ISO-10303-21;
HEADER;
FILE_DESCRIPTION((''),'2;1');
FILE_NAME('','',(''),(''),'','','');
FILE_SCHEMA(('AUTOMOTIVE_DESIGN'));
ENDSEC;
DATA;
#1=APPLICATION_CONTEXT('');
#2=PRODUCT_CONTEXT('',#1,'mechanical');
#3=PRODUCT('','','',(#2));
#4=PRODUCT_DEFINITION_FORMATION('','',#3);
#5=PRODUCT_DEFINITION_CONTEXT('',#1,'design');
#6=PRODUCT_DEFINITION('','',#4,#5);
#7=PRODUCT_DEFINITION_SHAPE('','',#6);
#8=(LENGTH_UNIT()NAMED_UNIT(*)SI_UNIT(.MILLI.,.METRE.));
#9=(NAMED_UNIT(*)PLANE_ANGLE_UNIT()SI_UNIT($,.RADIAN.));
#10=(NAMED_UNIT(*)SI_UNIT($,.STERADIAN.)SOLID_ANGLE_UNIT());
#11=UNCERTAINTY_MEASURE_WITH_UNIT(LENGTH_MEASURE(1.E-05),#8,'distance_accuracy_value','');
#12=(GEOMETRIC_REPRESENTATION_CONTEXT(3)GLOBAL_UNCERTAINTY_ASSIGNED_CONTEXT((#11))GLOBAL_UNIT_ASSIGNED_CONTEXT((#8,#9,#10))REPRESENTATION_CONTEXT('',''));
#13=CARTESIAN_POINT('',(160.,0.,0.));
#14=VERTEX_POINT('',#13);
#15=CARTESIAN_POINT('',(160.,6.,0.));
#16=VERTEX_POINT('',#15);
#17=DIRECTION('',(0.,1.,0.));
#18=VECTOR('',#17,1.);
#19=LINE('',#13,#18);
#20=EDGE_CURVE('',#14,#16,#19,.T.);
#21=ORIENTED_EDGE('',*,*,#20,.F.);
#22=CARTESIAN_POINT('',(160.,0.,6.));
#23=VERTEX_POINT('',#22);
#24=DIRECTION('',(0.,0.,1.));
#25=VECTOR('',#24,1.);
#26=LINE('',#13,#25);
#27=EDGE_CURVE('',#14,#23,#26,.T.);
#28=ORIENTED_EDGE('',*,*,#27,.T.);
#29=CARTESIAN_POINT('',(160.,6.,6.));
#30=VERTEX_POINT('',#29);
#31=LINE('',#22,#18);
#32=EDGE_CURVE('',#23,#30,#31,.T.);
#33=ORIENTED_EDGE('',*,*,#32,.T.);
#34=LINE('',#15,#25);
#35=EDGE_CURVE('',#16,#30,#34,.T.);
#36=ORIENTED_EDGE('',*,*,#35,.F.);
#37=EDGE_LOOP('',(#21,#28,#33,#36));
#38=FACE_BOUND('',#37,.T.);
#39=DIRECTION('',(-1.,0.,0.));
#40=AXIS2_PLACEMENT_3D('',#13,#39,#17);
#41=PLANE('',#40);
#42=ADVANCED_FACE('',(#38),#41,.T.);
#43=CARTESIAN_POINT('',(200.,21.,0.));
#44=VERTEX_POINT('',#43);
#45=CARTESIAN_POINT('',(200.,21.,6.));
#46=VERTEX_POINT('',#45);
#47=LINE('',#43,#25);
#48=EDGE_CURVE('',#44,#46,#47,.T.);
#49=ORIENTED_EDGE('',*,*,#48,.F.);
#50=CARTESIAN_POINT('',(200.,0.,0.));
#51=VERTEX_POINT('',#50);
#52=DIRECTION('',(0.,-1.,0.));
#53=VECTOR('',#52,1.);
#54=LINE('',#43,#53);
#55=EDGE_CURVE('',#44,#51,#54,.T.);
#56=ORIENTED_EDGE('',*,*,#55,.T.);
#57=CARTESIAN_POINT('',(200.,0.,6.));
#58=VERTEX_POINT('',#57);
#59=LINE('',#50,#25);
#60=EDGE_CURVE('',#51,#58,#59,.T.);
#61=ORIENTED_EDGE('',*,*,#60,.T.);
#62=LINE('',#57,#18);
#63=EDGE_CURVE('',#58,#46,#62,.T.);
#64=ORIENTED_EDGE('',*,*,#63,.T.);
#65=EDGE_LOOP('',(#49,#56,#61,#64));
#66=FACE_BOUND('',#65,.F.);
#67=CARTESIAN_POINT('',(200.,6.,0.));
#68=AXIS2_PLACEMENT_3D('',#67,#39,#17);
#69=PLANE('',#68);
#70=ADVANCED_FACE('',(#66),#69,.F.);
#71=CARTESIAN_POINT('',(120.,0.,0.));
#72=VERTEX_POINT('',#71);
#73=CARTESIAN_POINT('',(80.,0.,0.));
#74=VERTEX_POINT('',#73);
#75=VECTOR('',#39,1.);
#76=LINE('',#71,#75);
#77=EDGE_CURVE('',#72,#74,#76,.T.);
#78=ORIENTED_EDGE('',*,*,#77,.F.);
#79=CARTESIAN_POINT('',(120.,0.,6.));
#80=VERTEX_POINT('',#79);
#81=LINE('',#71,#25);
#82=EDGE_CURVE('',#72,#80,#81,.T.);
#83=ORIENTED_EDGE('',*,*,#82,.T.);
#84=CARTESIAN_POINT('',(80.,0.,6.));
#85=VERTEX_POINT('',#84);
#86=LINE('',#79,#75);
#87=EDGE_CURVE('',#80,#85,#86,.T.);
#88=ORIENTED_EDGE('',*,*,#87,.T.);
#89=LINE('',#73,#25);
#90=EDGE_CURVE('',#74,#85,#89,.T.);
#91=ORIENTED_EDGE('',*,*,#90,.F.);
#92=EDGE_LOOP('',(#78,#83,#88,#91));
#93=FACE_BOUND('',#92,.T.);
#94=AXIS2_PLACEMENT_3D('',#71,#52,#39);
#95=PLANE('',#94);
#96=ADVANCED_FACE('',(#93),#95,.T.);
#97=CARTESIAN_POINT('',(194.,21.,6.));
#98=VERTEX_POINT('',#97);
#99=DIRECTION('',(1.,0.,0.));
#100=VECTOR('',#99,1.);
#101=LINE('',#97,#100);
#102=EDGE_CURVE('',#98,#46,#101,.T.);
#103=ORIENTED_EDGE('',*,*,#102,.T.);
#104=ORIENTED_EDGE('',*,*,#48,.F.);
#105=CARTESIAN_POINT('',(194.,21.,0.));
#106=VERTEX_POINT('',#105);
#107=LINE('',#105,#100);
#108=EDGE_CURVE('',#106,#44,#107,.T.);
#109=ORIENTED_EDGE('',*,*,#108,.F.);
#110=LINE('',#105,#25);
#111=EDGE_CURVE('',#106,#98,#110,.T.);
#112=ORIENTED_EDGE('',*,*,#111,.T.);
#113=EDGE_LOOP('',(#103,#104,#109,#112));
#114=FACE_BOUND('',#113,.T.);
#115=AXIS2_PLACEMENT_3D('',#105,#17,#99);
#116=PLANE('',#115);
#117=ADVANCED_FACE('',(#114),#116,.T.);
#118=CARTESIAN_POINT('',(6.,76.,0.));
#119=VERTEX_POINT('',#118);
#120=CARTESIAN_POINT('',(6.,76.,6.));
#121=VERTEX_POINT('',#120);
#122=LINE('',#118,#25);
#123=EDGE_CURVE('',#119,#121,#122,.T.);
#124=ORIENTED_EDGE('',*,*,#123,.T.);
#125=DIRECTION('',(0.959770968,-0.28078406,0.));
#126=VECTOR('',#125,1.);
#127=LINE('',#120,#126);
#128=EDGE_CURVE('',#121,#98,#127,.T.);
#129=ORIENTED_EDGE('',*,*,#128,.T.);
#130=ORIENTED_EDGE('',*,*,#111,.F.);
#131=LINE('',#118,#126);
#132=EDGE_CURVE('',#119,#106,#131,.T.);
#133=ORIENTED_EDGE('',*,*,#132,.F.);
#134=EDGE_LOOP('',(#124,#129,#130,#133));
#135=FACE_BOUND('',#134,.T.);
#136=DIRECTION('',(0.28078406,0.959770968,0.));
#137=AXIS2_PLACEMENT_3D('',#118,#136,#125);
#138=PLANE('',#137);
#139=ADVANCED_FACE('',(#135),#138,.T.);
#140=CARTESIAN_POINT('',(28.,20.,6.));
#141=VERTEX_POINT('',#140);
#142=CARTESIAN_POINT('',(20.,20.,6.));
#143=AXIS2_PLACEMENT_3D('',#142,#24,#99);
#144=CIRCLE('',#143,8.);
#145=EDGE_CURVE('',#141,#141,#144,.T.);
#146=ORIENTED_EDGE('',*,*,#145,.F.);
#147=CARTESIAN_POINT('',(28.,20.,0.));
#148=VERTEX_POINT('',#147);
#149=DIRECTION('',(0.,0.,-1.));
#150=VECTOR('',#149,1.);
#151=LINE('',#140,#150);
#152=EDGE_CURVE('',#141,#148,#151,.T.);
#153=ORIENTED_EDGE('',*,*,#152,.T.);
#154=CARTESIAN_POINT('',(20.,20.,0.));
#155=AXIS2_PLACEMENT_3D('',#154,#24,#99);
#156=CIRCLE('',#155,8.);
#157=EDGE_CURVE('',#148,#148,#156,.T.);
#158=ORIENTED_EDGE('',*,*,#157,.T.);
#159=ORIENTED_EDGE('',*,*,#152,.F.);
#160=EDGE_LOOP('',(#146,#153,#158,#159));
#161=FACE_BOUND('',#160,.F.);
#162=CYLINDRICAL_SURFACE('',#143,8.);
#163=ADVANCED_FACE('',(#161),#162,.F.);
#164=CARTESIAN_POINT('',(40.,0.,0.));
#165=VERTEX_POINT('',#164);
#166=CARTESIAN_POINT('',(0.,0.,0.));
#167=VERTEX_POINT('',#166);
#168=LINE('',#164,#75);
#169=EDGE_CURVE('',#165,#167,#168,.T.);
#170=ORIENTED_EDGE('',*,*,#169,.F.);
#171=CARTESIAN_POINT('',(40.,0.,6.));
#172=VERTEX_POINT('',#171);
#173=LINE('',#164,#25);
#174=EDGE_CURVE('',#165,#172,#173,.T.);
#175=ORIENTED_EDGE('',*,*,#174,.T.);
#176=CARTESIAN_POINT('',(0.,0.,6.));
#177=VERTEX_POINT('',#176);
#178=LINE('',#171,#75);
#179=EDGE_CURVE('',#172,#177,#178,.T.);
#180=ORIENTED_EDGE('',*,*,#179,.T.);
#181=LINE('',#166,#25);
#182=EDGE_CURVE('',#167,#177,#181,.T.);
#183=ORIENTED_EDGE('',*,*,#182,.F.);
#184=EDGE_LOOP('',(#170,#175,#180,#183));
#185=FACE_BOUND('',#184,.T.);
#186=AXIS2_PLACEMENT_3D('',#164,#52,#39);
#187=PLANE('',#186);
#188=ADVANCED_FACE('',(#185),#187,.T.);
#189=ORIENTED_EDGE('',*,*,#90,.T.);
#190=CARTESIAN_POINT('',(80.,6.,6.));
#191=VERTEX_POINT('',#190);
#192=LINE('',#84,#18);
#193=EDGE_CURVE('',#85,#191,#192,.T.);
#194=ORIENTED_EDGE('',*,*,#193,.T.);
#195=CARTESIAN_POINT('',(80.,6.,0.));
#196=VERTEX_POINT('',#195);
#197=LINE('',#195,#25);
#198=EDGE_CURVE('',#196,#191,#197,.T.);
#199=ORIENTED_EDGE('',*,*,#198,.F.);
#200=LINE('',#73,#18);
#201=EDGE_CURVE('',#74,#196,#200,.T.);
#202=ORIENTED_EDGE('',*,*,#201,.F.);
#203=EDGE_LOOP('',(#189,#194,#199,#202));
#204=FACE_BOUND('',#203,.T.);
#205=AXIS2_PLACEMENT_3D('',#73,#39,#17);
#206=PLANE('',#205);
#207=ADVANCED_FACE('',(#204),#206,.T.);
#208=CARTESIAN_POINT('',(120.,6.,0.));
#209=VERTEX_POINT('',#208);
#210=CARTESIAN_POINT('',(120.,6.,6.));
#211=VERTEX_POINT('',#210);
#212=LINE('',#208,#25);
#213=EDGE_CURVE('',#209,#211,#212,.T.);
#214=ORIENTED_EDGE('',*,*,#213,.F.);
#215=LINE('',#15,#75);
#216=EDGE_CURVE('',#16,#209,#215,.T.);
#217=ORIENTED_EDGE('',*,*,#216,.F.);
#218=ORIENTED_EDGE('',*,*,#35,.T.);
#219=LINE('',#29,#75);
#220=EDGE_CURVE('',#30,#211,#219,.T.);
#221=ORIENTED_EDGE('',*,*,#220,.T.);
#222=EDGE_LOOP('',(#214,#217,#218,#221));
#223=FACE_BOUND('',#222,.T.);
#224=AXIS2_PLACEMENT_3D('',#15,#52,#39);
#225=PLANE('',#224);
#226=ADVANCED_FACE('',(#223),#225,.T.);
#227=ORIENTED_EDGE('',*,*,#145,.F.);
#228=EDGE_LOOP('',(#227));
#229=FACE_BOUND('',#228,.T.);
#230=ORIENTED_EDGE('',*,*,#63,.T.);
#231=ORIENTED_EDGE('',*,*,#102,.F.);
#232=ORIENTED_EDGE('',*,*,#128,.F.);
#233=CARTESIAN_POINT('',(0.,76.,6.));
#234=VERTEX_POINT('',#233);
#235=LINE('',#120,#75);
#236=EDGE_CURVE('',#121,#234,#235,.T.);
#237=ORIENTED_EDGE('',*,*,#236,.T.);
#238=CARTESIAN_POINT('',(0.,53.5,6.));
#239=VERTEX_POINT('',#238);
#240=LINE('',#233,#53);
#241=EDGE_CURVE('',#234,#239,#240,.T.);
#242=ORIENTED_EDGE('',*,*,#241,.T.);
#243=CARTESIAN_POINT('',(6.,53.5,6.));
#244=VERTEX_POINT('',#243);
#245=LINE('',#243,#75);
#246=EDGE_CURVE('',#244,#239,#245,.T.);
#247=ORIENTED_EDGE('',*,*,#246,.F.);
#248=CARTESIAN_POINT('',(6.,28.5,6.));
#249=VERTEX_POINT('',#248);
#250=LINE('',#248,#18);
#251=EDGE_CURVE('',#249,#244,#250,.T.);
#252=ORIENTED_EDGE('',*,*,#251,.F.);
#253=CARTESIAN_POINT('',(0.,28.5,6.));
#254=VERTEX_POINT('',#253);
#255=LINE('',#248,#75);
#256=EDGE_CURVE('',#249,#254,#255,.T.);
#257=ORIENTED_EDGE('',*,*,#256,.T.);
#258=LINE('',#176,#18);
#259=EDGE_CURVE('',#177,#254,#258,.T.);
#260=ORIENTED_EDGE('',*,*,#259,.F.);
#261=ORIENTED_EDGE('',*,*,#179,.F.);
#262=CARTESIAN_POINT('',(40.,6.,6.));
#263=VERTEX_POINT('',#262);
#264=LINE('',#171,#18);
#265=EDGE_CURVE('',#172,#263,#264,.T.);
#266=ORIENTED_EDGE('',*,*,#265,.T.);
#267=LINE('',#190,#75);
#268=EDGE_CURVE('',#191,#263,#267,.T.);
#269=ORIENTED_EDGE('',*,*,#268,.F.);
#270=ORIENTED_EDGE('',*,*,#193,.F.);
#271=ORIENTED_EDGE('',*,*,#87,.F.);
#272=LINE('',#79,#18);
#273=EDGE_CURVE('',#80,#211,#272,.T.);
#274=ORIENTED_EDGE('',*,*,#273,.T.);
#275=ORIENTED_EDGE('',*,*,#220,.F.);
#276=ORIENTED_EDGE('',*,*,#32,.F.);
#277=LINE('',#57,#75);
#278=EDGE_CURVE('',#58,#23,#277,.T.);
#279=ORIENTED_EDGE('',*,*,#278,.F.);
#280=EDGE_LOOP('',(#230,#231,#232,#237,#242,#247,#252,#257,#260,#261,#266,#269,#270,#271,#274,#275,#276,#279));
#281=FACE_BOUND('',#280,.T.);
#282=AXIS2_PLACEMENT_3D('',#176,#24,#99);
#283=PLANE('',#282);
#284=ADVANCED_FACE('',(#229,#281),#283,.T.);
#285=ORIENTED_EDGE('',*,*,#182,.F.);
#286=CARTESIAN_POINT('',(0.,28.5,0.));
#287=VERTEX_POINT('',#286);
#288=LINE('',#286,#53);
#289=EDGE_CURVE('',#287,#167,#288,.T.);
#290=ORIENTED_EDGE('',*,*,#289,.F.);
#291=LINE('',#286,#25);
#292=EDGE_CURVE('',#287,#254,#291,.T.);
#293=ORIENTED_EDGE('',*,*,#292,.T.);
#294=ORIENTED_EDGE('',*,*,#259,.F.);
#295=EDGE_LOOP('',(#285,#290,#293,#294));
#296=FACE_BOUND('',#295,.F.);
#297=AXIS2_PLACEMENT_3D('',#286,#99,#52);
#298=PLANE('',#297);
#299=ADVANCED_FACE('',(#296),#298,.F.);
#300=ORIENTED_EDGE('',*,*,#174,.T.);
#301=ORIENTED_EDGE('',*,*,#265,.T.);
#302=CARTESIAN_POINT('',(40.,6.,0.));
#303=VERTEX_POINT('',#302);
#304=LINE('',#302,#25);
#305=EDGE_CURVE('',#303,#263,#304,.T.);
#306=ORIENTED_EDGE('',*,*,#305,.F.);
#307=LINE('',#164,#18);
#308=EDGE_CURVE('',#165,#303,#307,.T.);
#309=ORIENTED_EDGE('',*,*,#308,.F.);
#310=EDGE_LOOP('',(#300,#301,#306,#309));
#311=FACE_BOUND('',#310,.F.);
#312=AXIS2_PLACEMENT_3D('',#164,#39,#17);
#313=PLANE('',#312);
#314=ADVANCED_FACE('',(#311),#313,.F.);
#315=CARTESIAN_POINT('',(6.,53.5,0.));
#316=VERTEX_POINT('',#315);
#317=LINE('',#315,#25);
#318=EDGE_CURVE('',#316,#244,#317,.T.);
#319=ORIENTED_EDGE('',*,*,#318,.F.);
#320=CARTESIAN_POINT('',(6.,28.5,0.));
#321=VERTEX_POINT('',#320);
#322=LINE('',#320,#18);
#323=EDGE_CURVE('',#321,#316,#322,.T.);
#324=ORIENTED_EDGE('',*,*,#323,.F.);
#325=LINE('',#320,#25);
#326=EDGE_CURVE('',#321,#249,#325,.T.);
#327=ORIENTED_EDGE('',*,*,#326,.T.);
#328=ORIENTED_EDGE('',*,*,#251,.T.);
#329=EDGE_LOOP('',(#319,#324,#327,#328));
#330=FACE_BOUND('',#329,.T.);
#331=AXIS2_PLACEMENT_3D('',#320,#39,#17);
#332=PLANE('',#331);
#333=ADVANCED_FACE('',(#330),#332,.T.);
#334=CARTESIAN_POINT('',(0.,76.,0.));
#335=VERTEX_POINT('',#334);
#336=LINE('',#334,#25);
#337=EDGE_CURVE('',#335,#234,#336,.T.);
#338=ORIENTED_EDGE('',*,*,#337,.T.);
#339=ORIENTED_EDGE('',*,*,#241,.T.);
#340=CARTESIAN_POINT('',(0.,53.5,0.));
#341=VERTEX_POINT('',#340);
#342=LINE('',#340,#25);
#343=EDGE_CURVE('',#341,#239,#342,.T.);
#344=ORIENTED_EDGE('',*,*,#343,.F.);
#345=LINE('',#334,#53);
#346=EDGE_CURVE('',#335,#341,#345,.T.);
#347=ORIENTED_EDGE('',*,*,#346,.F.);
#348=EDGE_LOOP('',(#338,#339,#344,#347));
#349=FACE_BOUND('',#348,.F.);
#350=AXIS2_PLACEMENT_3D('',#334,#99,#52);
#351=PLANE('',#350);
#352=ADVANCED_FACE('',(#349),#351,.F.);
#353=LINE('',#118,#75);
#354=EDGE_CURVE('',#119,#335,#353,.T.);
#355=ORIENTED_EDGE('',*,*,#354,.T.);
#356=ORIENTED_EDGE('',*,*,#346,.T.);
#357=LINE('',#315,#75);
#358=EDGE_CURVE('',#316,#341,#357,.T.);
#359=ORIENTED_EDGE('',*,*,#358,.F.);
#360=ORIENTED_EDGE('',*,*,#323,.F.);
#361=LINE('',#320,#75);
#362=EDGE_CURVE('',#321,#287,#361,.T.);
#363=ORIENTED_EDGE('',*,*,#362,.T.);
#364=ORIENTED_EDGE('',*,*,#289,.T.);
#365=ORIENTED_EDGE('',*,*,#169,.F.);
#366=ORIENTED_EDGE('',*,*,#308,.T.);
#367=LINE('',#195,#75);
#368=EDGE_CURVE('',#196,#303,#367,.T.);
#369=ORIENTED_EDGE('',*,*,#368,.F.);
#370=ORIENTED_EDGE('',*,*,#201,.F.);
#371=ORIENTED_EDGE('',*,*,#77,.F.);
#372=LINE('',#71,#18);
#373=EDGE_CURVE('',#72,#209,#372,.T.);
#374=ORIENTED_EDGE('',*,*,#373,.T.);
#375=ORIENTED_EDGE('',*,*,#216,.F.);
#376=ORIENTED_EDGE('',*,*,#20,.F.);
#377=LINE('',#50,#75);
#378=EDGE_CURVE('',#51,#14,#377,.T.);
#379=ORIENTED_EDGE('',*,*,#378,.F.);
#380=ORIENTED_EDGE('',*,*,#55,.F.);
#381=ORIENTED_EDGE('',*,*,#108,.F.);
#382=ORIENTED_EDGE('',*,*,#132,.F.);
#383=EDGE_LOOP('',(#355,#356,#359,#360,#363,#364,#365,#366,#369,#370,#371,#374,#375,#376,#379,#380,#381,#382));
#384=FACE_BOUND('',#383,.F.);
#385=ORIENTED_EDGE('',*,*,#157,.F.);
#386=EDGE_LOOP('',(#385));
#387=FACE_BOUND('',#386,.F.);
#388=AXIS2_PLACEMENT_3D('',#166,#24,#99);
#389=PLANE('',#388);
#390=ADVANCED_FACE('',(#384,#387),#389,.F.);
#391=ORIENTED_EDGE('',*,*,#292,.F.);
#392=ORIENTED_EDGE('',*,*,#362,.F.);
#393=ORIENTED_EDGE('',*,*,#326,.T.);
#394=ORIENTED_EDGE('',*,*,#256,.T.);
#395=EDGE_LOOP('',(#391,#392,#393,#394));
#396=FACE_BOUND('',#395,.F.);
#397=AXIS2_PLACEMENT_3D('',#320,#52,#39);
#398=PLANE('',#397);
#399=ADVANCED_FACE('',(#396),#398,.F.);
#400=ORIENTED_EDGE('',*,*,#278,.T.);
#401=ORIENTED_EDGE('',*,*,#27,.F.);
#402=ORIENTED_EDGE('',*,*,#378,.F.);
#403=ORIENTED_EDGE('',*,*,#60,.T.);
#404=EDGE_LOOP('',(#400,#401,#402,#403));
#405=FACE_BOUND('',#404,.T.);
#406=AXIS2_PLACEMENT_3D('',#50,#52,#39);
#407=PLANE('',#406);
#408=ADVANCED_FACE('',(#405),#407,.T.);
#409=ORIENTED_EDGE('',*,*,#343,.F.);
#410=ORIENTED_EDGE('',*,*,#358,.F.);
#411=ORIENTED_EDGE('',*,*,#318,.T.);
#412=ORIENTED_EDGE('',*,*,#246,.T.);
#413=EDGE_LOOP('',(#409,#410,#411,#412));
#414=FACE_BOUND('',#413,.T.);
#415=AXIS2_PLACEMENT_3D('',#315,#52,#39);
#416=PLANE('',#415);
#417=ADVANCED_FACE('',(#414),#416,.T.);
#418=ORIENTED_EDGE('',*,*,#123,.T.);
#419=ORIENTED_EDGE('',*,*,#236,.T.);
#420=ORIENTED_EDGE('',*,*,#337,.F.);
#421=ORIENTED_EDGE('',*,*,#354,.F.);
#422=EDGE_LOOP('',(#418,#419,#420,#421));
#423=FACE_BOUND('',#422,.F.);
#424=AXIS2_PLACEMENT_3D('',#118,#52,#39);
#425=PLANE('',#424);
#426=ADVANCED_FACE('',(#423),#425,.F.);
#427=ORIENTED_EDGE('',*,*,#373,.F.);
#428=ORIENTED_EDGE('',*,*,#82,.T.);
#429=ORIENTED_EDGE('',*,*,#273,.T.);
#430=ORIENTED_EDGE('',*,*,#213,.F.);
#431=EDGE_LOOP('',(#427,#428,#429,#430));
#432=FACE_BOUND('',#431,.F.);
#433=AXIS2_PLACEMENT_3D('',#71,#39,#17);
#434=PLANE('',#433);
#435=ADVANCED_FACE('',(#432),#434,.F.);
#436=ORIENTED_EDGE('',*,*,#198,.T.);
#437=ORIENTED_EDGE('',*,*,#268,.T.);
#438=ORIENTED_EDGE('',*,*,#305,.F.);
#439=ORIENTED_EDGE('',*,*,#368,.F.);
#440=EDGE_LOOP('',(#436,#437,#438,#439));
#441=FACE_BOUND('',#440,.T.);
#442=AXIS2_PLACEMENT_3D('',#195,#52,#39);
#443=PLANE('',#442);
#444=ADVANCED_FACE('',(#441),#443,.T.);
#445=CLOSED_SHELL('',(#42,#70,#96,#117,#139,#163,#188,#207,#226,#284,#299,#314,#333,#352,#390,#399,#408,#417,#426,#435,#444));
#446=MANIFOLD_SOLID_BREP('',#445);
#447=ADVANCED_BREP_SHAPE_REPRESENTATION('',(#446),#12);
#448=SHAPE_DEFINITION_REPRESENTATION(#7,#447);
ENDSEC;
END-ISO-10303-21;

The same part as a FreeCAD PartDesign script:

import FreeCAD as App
import Part
import Sketcher

V = App.Vector

doc = App.newDocument("Part")
params = doc.addObject("Spreadsheet::Sheet", "Params")
for row, (alias, value) in enumerate([
    ("sketch1_width", "40 mm"),
    ("sketch1_width2", "6 mm"),
    ("sketch1_height", "21 mm"),
    ("sketch1_height2", "25 mm"),
    ("sketch1_height3", "28.5 mm"),
    ("pad1_length", "6 mm"),
    ("sketch2_diameter", "16 mm"),
    ("pocket1_length", "6 mm"),
], start=1):
    params.set(f"A{row}", alias)
    params.set(f"B{row}", "=" + value)
    params.setAlias(f"B{row}", alias)

body = doc.addObject("PartDesign::Body", "Body")

sketch1 = body.newObject("Sketcher::SketchObject", "Sketch")
sketch1.AttachmentSupport = (doc.getObject("XY_Plane"), [""])
sketch1.MapMode = "FlatFace"
sketch1.addGeometry([
    Part.LineSegment(V(0, 28, 0), V(0, 0, 0)),
    Part.LineSegment(V(0, 0, 0), V(40, 0, 0)),
    Part.LineSegment(V(40, 0, 0), V(40, 6, 0)),
    Part.LineSegment(V(40, 6, 0), V(80, 6, 0)),
    Part.LineSegment(V(80, 6, 0), V(80, 0, 0)),
    Part.LineSegment(V(80, 0, 0), V(120, 0, 0)),
    Part.LineSegment(V(120, 0, 0), V(120, 6, 0)),
    Part.LineSegment(V(120, 6, 0), V(160, 6, 0)),
    Part.LineSegment(V(160, 6, 0), V(160, 0, 0)),
    Part.LineSegment(V(160, 0, 0), V(200, 0, 0)),
    Part.LineSegment(V(200, 0, 0), V(200, 21, 0)),
    Part.LineSegment(V(200, 21, 0), V(194, 21, 0)),
    Part.LineSegment(V(194, 21, 0), V(6, 76, 0)),
    Part.LineSegment(V(6, 76, 0), V(0, 76, 0)),
    Part.LineSegment(V(0, 76, 0), V(0, 54, 0)),
    Part.LineSegment(V(0, 54, 0), V(6, 54, 0)),
    Part.LineSegment(V(6, 54, 0), V(6, 28, 0)),
    Part.LineSegment(V(6, 28, 0), V(0, 28, 0)),
], False)
sketch1.addConstraint([
    Sketcher.Constraint("Coincident", 0, 2, 1, 1),
    Sketcher.Constraint("Coincident", 1, 2, 2, 1),
    Sketcher.Constraint("Coincident", 2, 2, 3, 1),
    Sketcher.Constraint("Coincident", 3, 2, 4, 1),
    Sketcher.Constraint("Coincident", 4, 2, 5, 1),
    Sketcher.Constraint("Coincident", 5, 2, 6, 1),
    Sketcher.Constraint("Coincident", 6, 2, 7, 1),
    Sketcher.Constraint("Coincident", 7, 2, 8, 1),
    Sketcher.Constraint("Coincident", 8, 2, 9, 1),
    Sketcher.Constraint("Coincident", 9, 2, 10, 1),
    Sketcher.Constraint("Coincident", 10, 2, 11, 1),
    Sketcher.Constraint("Coincident", 11, 2, 12, 1),
    Sketcher.Constraint("Coincident", 12, 2, 13, 1),
    Sketcher.Constraint("Coincident", 13, 2, 14, 1),
    Sketcher.Constraint("Coincident", 14, 2, 15, 1),
    Sketcher.Constraint("Coincident", 15, 2, 16, 1),
    Sketcher.Constraint("Coincident", 16, 2, 17, 1),
    Sketcher.Constraint("Coincident", 17, 2, 0, 1),
    Sketcher.Constraint("Vertical", 0),
    Sketcher.Constraint("Horizontal", 1),
    Sketcher.Constraint("Vertical", 2),
    Sketcher.Constraint("Horizontal", 3),
    Sketcher.Constraint("Vertical", 4),
    Sketcher.Constraint("Horizontal", 5),
    Sketcher.Constraint("Vertical", 6),
    Sketcher.Constraint("Horizontal", 7),
    Sketcher.Constraint("Vertical", 8),
    Sketcher.Constraint("Horizontal", 9),
    Sketcher.Constraint("Vertical", 10),
    Sketcher.Constraint("Horizontal", 11),
    Sketcher.Constraint("Horizontal", 13),
    Sketcher.Constraint("Vertical", 14),
    Sketcher.Constraint("Horizontal", 15),
    Sketcher.Constraint("Vertical", 16),
    Sketcher.Constraint("Horizontal", 17),
    Sketcher.Constraint("Coincident", 0, 2, -1, 1),
    Sketcher.Constraint("PointOnObject", 4, 2, -1),
    Sketcher.Constraint("PointOnObject", 8, 2, -1),
    Sketcher.Constraint("PointOnObject", 13, 2, -2),
    Sketcher.Constraint("Horizontal", 3, 2, 6, 2),
    Sketcher.Constraint("Vertical", 12, 2, 15, 2),
    Sketcher.Constraint("Equal", 1, 3),
    Sketcher.Constraint("Equal", 3, 5),
    Sketcher.Constraint("Equal", 5, 7),
    Sketcher.Constraint("Equal", 7, 9),
    Sketcher.Constraint("Equal", 11, 13),
    Sketcher.Constraint("Equal", 17, 2),
    Sketcher.Constraint("DistanceX", 1, 1, 1, 2, 40.0),
    Sketcher.Constraint("DistanceX", 11, 2, 11, 1, 6.0),
    Sketcher.Constraint("DistanceY", 10, 1, 10, 2, 21.0),
    Sketcher.Constraint("DistanceY", 16, 2, 16, 1, 25.0),
    Sketcher.Constraint("DistanceY", 0, 2, 0, 1, 28.5),
    Sketcher.Constraint("DistanceY", 14, 2, 14, 1, 22.5),
])
sketch1.setExpression("Constraints[47]", "Params.sketch1_width")
sketch1.setExpression("Constraints[48]", "Params.sketch1_width2")
sketch1.setExpression("Constraints[49]", "Params.sketch1_height")
sketch1.setExpression("Constraints[50]", "Params.sketch1_height2")
sketch1.setExpression("Constraints[51]", "Params.sketch1_height3")
pad1 = body.newObject("PartDesign::Pad", "Pad")
pad1.Profile = sketch1
pad1.setExpression("Length", "Params.pad1_length")

sketch2 = body.newObject("Sketcher::SketchObject", "Sketch001")
sketch2.AttachmentSupport = (doc.getObject("XY_Plane"), [""])
sketch2.MapMode = "FlatFace"
sketch2.AttachmentOffset = App.Placement(V(0, 0, 6), App.Rotation())
sketch2.addGeometry(Part.Circle(V(20, 20, 0), V(0, 0, 1), 8), False)
sketch2.addConstraint([
    Sketcher.Constraint("Diameter", 0, 16.0),
    Sketcher.Constraint("DistanceX", -1, 1, 0, 3, 20.0),
    Sketcher.Constraint("DistanceY", -1, 1, 0, 3, 20.0),
])
sketch2.setExpression("Constraints[0]", "Params.sketch2_diameter")
pocket1 = body.newObject("PartDesign::Pocket", "Pocket")
pocket1.Profile = sketch2
pocket1.setExpression("Length", "Params.pocket1_length")

doc.recompute()
